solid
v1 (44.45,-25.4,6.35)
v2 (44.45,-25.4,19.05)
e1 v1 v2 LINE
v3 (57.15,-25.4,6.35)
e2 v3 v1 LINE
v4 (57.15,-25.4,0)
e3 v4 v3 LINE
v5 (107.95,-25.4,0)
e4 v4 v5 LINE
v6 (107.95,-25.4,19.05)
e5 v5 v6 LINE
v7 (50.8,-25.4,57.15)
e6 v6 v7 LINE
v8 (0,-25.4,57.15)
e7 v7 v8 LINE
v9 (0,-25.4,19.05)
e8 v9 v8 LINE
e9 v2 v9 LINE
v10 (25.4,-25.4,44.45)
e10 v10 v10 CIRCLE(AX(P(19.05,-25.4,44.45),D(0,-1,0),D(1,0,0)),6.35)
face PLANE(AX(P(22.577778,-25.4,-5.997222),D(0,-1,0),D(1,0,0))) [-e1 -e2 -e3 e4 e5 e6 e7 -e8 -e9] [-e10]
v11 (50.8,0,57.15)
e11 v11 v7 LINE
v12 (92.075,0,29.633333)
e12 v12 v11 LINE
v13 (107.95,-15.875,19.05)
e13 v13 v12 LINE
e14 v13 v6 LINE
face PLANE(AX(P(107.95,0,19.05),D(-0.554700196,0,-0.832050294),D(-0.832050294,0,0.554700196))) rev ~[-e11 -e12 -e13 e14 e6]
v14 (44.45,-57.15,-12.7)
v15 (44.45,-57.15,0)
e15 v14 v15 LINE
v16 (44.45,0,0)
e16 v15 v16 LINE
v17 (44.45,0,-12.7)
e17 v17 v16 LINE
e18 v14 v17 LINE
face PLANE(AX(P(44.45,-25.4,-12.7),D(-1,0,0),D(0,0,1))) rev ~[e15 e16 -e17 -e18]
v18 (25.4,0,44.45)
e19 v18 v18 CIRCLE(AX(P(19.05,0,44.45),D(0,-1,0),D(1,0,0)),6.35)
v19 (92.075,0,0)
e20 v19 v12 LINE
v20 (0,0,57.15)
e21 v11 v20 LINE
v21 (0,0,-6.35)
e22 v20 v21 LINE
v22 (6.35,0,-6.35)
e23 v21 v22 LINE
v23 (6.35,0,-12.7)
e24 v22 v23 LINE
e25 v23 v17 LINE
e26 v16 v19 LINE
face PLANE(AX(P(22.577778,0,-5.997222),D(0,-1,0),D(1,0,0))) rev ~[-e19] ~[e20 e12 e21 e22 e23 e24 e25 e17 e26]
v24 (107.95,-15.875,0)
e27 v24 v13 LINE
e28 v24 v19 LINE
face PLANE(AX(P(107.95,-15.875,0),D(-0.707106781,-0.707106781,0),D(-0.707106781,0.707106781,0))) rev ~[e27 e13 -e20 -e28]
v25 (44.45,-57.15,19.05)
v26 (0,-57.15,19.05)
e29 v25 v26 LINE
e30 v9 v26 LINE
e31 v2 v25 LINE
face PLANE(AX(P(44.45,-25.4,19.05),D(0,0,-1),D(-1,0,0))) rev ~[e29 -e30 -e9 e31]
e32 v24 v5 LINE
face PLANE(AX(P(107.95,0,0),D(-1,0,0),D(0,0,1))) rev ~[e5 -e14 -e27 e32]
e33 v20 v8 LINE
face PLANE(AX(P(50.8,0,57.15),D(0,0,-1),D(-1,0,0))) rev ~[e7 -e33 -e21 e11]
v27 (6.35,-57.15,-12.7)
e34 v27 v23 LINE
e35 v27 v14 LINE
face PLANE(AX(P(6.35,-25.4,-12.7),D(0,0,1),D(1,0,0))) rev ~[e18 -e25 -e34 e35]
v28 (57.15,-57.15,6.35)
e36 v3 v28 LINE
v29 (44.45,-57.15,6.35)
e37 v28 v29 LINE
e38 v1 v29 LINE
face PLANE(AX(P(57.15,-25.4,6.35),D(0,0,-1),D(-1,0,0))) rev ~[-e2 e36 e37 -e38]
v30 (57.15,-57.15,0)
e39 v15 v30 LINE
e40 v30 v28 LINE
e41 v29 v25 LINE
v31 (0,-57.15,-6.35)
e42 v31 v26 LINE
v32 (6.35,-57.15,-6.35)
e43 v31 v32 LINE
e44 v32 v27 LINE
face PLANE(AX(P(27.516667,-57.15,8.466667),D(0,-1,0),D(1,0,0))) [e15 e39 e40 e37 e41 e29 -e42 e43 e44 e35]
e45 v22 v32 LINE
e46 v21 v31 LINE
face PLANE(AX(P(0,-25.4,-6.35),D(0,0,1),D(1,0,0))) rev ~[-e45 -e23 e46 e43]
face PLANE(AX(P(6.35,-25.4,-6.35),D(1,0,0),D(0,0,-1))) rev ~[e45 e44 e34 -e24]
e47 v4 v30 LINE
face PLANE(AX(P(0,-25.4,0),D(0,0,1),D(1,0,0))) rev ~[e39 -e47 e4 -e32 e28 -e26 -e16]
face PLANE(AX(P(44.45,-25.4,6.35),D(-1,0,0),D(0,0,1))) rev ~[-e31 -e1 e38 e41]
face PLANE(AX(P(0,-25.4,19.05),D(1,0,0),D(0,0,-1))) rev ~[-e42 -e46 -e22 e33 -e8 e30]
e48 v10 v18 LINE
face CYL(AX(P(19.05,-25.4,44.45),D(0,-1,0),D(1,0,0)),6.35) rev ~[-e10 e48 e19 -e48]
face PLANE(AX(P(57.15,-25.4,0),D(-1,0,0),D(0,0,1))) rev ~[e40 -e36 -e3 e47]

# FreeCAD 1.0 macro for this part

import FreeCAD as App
import Part
import Sketcher
Q = App.Units.Quantity

doc = App.newDocument("Part")
params = doc.addObject("Spreadsheet::Sheet", "Params")
for row, (alias, value) in enumerate([
    ("sketch1_width", "2 in"),
    ("sketch1_width2", "4.25 in"),
    ("sketch1_height", "2.25 in"),
    ("sketch1_height2", "0.75 in"),
    ("pad1_length", "1 in"),
    ("sketch2_width", "1.5 in"),
    ("sketch2_height", "0.5 in"),
    ("pad2_length", "1 in"),
    ("pad2_length2", "1.25 in"),
    ("sketch3_width", "0.5 in"),
    ("sketch3_width2", "2.25 in"),
    ("sketch3_height", "0.75 in"),
    ("pad3_length", "1.25 in"),
    ("sketch4_diameter", "0.5 in"),
    ("sketch5_width", "0.625 in"),
], start=1):
    params.set(f"A{row}", alias)
    params.set(f"B{row}", "=" + value)
    params.setAlias(f"B{row}", alias)

body = doc.addObject("PartDesign::Body", "Body")

sketch1 = body.newObject("Sketcher::SketchObject", "Sketch")
sketch1.AttachmentSupport = (doc.getObject("XZ_Plane"), [""])
sketch1.MapMode = "FlatFace"
sketch1.addGeometry([
    Part.LineSegment(App.Vector(0, 57, 0), App.Vector(0, 0, 0)),
    Part.LineSegment(App.Vector(0, 0, 0), App.Vector(108, 0, 0)),
    Part.LineSegment(App.Vector(108, 0, 0), App.Vector(108, 19, 0)),
    Part.LineSegment(App.Vector(108, 19, 0), App.Vector(51, 57, 0)),
    Part.LineSegment(App.Vector(51, 57, 0), App.Vector(0, 57, 0)),
], False)
sketch1.addConstraint([
    Sketcher.Constraint("Coincident", 0, 2, 1, 1),
    Sketcher.Constraint("Coincident", 1, 2, 2, 1),
    Sketcher.Constraint("Coincident", 2, 2, 3, 1),
    Sketcher.Constraint("Coincident", 3, 2, 4, 1),
    Sketcher.Constraint("Coincident", 4, 2, 0, 1),
    Sketcher.Constraint("Vertical", 0),
    Sketcher.Constraint("Horizontal", 1),
    Sketcher.Constraint("Vertical", 2),
    Sketcher.Constraint("Horizontal", 4),
    Sketcher.Constraint("Coincident", 0, 2, -1, 1),
    Sketcher.Constraint("DistanceX", 4, 2, 4, 1, Q("2 in")),
    Sketcher.Constraint("DistanceX", 1, 1, 1, 2, Q("4.25 in")),
    Sketcher.Constraint("DistanceY", 0, 2, 0, 1, Q("2.25 in")),
    Sketcher.Constraint("DistanceY", 2, 1, 2, 2, Q("0.75 in")),
])
sketch1.setExpression("Constraints[10]", "Params.sketch1_width")
sketch1.setExpression("Constraints[11]", "Params.sketch1_width2")
sketch1.setExpression("Constraints[12]", "Params.sketch1_height")
sketch1.setExpression("Constraints[13]", "Params.sketch1_height2")
pad1 = body.newObject("PartDesign::Pad", "Pad")
pad1.Profile = sketch1
pad1.setExpression("Length", "Params.pad1_length")

sketch2 = body.newObject("Sketcher::SketchObject", "Sketch001")
sketch2.AttachmentSupport = (doc.getObject("XZ_Plane"), [""])
sketch2.MapMode = "FlatFace"
sketch2.AttachmentOffset = App.Placement(App.Vector(0, 0, 1 * 25.4), App.Rotation())
sketch2.addGeometry([
    Part.LineSegment(App.Vector(44, 0, 0), App.Vector(0, 0, 0)),
    Part.LineSegment(App.Vector(0, 0, 0), App.Vector(0, -6, 0)),
    Part.LineSegment(App.Vector(0, -6, 0), App.Vector(6, -6, 0)),
    Part.LineSegment(App.Vector(6, -6, 0), App.Vector(6, -13, 0)),
    Part.LineSegment(App.Vector(6, -13, 0), App.Vector(44, -13, 0)),
    Part.LineSegment(App.Vector(44, -13, 0), App.Vector(44, 0, 0)),
], False)
sketch2.addConstraint([
    Sketcher.Constraint("Coincident", 0, 2, 1, 1),
    Sketcher.Constraint("Coincident", 1, 2, 2, 1),
    Sketcher.Constraint("Coincident", 2, 2, 3, 1),
    Sketcher.Constraint("Coincident", 3, 2, 4, 1),
    Sketcher.Constraint("Coincident", 4, 2, 5, 1),
    Sketcher.Constraint("Coincident", 5, 2, 0, 1),
    Sketcher.Constraint("Horizontal", 0),
    Sketcher.Constraint("Vertical", 1),
    Sketcher.Constraint("Horizontal", 2),
    Sketcher.Constraint("Vertical", 3),
    Sketcher.Constraint("Horizontal", 4),
    Sketcher.Constraint("Vertical", 5),
    Sketcher.Constraint("Coincident", 0, 2, -1, 1),
    Sketcher.Constraint("Equal", 2, 1),
    Sketcher.Constraint("Equal", 1, 3),
    Sketcher.Constraint("DistanceX", 4, 1, 4, 2, Q("1.5 in")),
    Sketcher.Constraint("DistanceY", 5, 1, 5, 2, Q("0.5 in")),
])
sketch2.setExpression("Constraints[15]", "Params.sketch2_width")
sketch2.setExpression("Constraints[16]", "Params.sketch2_height")
pad2 = body.newObject("PartDesign::Pad", "Pad001")
pad2.Profile = sketch2
pad2.Type = "TwoLengths"
pad2.setExpression("Length", "Params.pad2_length")
pad2.setExpression("Length2", "Params.pad2_length2")
pad2.Reversed = True

sketch3 = body.newObject("Sketcher::SketchObject", "Sketch002")
sketch3.AttachmentSupport = (doc.getObject("XZ_Plane"), [""])
sketch3.MapMode = "FlatFace"
sketch3.AttachmentOffset = App.Placement(App.Vector(0, 0, 1 * 25.4), App.Rotation())
sketch3.addGeometry([
    Part.LineSegment(App.Vector(0, 19, 0), App.Vector(0, 0, 0)),
    Part.LineSegment(App.Vector(0, 0, 0), App.Vector(57, 0, 0)),
    Part.LineSegment(App.Vector(57, 0, 0), App.Vector(57, 6, 0)),
    Part.LineSegment(App.Vector(57, 6, 0), App.Vector(44, 6, 0)),
    Part.LineSegment(App.Vector(44, 6, 0), App.Vector(44, 19, 0)),
    Part.LineSegment(App.Vector(44, 19, 0), App.Vector(0, 19, 0)),
], False)
sketch3.addConstraint([
    Sketcher.Constraint("Coincident", 0, 2, 1, 1),
    Sketcher.Constraint("Coincident", 1, 2, 2, 1),
    Sketcher.Constraint("Coincident", 2, 2, 3, 1),
    Sketcher.Constraint("Coincident", 3, 2, 4, 1),
    Sketcher.Constraint("Coincident", 4, 2, 5, 1),
    Sketcher.Constraint("Coincident", 5, 2, 0, 1),
    Sketcher.Constraint("Vertical", 0),
    Sketcher.Constraint("Horizontal", 1),
    Sketcher.Constraint("Vertical", 2),
    Sketcher.Constraint("Horizontal", 3),
    Sketcher.Constraint("Vertical", 4),
    Sketcher.Constraint("Horizontal", 5),
    Sketcher.Constraint("Coincident", 0, 2, -1, 1),
    Sketcher.Constraint("Equal", 3, 4),
    Sketcher.Constraint("DistanceX", 3, 2, 3, 1, Q("0.5 in")),
    Sketcher.Constraint("DistanceX", 1, 1, 1, 2, Q("2.25 in")),
    Sketcher.Constraint("DistanceY", 0, 2, 0, 1, Q("0.75 in")),
])
sketch3.setExpression("Constraints[14]", "Params.sketch3_width")
sketch3.setExpression("Constraints[15]", "Params.sketch3_width2")
sketch3.setExpression("Constraints[16]", "Params.sketch3_height")
pad3 = body.newObject("PartDesign::Pad", "Pad002")
pad3.Profile = sketch3
pad3.setExpression("Length", "Params.pad3_length")

sketch4 = body.newObject("Sketcher::SketchObject", "Sketch003")
sketch4.AttachmentSupport = (doc.getObject("XZ_Plane"), [""])
sketch4.MapMode = "FlatFace"
sketch4.AttachmentOffset = App.Placement(App.Vector(0, 0, 1 * 25.4), App.Rotation())
sketch4.addGeometry(Part.Circle(App.Vector(19, 44, 0), App.Vector(0, 0, 1), 6), False)
sketch4.addConstraint([
    Sketcher.Constraint("Diameter", 0, Q("0.5 in")),
    Sketcher.Constraint("DistanceX", -1, 1, 0, 3, Q("0.75 in")),
    Sketcher.Constraint("DistanceY", -1, 1, 0, 3, Q("1.75 in")),
])
sketch4.setExpression("Constraints[0]", "Params.sketch4_diameter")
pocket1 = body.newObject("PartDesign::Pocket", "Pocket")
pocket1.Profile = sketch4
pocket1.Type = "ThroughAll"

sketch5 = body.newObject("Sketcher::SketchObject", "Sketch004")
sketch5.AttachmentSupport = (doc.getObject("XY_Plane"), [""])
sketch5.MapMode = "FlatFace"
sketch5.addGeometry([
    Part.LineSegment(App.Vector(108, 0, 0), App.Vector(108, -16, 0)),
    Part.LineSegment(App.Vector(108, -16, 0), App.Vector(92, 0, 0)),
    Part.LineSegment(App.Vector(92, 0, 0), App.Vector(108, 0, 0)),
], False)
sketch5.addConstraint([
    Sketcher.Constraint("Coincident", 0, 2, 1, 1),
    Sketcher.Constraint("Coincident", 1, 2, 2, 1),
    Sketcher.Constraint("Coincident", 2, 2, 0, 1),
    Sketcher.Constraint("Vertical", 0),
    Sketcher.Constraint("Horizontal", 2),
    Sketcher.Constraint("PointOnObject", 1, 2, -1),
    Sketcher.Constraint("Equal", 2, 0),
    Sketcher.Constraint("DistanceX", 2, 1, 2, 2, Q("0.625 in")),
    Sketcher.Constraint("DistanceX", -1, 1, 0, 2, Q("4.25 in")),
])
sketch5.setExpression("Constraints[7]", "Params.sketch5_width")
pocket2 = body.newObject("PartDesign::Pocket", "Pocket001")
pocket2.Profile = sketch5
pocket2.Type = "ThroughAll"
pocket2.Reversed = True

doc.recompute()
